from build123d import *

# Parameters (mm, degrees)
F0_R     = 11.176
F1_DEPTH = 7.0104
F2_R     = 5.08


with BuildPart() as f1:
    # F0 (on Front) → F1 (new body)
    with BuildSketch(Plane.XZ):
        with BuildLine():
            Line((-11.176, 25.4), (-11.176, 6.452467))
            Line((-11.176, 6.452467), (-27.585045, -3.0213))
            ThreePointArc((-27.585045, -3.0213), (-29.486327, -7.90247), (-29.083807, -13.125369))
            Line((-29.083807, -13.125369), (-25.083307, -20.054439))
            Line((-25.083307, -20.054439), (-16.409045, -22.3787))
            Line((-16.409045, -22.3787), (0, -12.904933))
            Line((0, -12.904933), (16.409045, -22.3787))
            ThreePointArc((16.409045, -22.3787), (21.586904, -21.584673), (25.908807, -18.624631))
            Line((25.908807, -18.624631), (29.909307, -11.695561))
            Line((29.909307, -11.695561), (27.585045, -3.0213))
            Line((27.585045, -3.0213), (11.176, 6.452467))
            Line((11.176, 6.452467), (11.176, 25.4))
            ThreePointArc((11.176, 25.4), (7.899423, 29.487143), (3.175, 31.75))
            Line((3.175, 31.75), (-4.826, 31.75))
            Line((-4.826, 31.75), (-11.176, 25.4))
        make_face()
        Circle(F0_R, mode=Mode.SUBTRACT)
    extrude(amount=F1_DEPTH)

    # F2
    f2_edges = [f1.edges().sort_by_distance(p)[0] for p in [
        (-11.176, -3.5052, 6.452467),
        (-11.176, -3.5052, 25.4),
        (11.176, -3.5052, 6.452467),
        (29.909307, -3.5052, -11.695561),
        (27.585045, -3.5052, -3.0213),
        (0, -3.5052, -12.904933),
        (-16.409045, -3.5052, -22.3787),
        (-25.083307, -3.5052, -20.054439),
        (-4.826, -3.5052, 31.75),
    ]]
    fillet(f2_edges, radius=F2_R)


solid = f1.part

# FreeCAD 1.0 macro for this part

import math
import FreeCAD as App
import Part
import Sketcher

V = App.Vector
Q = App.Units.Quantity


def edges_at(feature, points):
    """Names of the edges that pass closest to the given points."""
    edges = feature.Shape.Edges
    near = lambda p: min(range(len(edges)), key=lambda i: edges[i].distToShape(Part.Vertex(*p))[0])
    return sorted({f"Edge{near(p) + 1}" for p in points})

doc = App.newDocument("Part")
body = doc.addObject("PartDesign::Body", "Body")

# Sketch on XZ plane
sketch1 = doc.addObject("Sketcher::SketchObject", "Sketch")
body.addObject(sketch1)
sketch1.AttachmentSupport = (doc.XZ_Plane, [""])
sketch1.MapMode = "FlatFace"
sketch1.addGeometry(Part.LineSegment(V(-11, 25, 0), V(-11, 6, 0)), False)
sketch1.addGeometry(Part.LineSegment(V(-11, 6, 0), V(-28, -3, 0)), False)
sketch1.addGeometry(Part.ArcOfCircle(Part.Circle(V(-18, -10, 0), V(0, 0, 1), 12), math.radians(146), math.radians(197)), False)
sketch1.addGeometry(Part.LineSegment(V(-29, -13, 0), V(-25, -20, 0)), False)
sketch1.addGeometry(Part.LineSegment(V(-25, -20, 0), V(-16, -22, 0)), False)
sketch1.addGeometry(Part.LineSegment(V(-16, -22, 0), V(0, -13, 0)), False)
sketch1.addGeometry(Part.LineSegment(V(0, -13, 0), V(16, -22, 0)), False)
sketch1.addGeometry(Part.ArcOfCircle(Part.Circle(V(17, -11, 0), V(0, 0, 1), 12), math.radians(-94), math.radians(-43)), False)
sketch1.addGeometry(Part.LineSegment(V(26, -19, 0), V(30, -12, 0)), False)
sketch1.addGeometry(Part.LineSegment(V(30, -12, 0), V(28, -3, 0)), False)
sketch1.addGeometry(Part.LineSegment(V(28, -3, 0), V(11, 6, 0)), False)
sketch1.addGeometry(Part.LineSegment(V(11, 6, 0), V(11, 25, 0)), False)
sketch1.addGeometry(Part.ArcOfCircle(Part.Circle(V(1, 20, 0), V(0, 0, 1), 12), math.radians(26), math.radians(77)), False)
sketch1.addGeometry(Part.LineSegment(V(3, 32, 0), V(-5, 32, 0)), False)
sketch1.addGeometry(Part.LineSegment(V(-5, 32, 0), V(-11, 25, 0)), False)
sketch1.addGeometry(Part.Circle(V(0, 0, 0), V(0, 0, 1), 11), False)
sketch1.addConstraint(Sketcher.Constraint("Coincident", 0, 2, 1, 1))
sketch1.addConstraint(Sketcher.Constraint("Coincident", 1, 2, 2, 1))
sketch1.addConstraint(Sketcher.Constraint("Coincident", 2, 2, 3, 1))
sketch1.addConstraint(Sketcher.Constraint("Coincident", 3, 2, 4, 1))
sketch1.addConstraint(Sketcher.Constraint("Coincident", 4, 2, 5, 1))
sketch1.addConstraint(Sketcher.Constraint("Coincident", 5, 2, 6, 1))
sketch1.addConstraint(Sketcher.Constraint("Coincident", 6, 2, 7, 1))
sketch1.addConstraint(Sketcher.Constraint("Coincident", 7, 2, 8, 1))
sketch1.addConstraint(Sketcher.Constraint("Coincident", 8, 2, 9, 1))
sketch1.addConstraint(Sketcher.Constraint("Coincident", 9, 2, 10, 1))
sketch1.addConstraint(Sketcher.Constraint("Coincident", 10, 2, 11, 1))
sketch1.addConstraint(Sketcher.Constraint("Coincident", 11, 2, 12, 1))
sketch1.addConstraint(Sketcher.Constraint("Coincident", 12, 2, 13, 1))
sketch1.addConstraint(Sketcher.Constraint("Coincident", 13, 2, 14, 1))
sketch1.addConstraint(Sketcher.Constraint("Coincident", 14, 2, 0, 1))
sketch1.addConstraint(Sketcher.Constraint("Vertical", 0))
sketch1.addConstraint(Sketcher.Constraint("Vertical", 11))
sketch1.addConstraint(Sketcher.Constraint("Horizontal", 13))
sketch1.addConstraint(Sketcher.Constraint("Coincident", 15, 3, -1, 1))
sketch1.addConstraint(Sketcher.Constraint("Symmetric", 4, 2, 6, 2, -2))
sketch1.addConstraint(Sketcher.Constraint("Symmetric", 1, 2, 9, 2, -2))
sketch1.addConstraint(Sketcher.Constraint("Symmetric", 0, 2, 10, 2, -2))
sketch1.addConstraint(Sketcher.Constraint("PointOnObject", 5, 2, -2))
sketch1.addConstraint(Sketcher.Constraint("Perpendicular", 1, 3))
sketch1.addConstraint(Sketcher.Constraint("Perpendicular", 3, 5))
sketch1.addConstraint(Sketcher.Constraint("Perpendicular", 6, 8))
sketch1.addConstraint(Sketcher.Constraint("Horizontal", 11, 2, 14, 2))
sketch1.addConstraint(Sketcher.Constraint("Equal", 1, 5))
sketch1.addConstraint(Sketcher.Constraint("Equal", 3, 8))
sketch1.addConstraint(Sketcher.Constraint("Equal", 4, 9))
sketch1.addConstraint(Sketcher.Constraint("Equal", 9, 14))
sketch1.addConstraint(Sketcher.Constraint("Diameter", 15, Q("0.88 in")))
sketch1.addConstraint(Sketcher.Constraint("DistanceY", -1, 1, 11, 2, Q("1 in")))
sketch1.addConstraint(Sketcher.Constraint("Angle", 1, Q("-149.999999 deg")))
sketch1.addConstraint(Sketcher.Constraint("Angle", 4, Q("-14.999997 deg")))
sketch1.addConstraint(Sketcher.Constraint("Angle", 9, Q("105.000005 deg")))
sketch1.addConstraint(Sketcher.Constraint("Angle", 14, Q("-135 deg")))
sketch1.addConstraint(Sketcher.Constraint("DistanceX", 13, 2, 13, 1, Q("0.315 in")))
sketch1.addConstraint(Sketcher.Constraint("DistanceX", 0, 2, -1, 1, Q("0.44 in")))
sketch1.addConstraint(Sketcher.Constraint("DistanceY", -1, 1, 12, 2, Q("1.25 in")))
sketch1.addConstraint(Sketcher.Constraint("Distance", 3, Q("0.315 in")))
sketch1.addConstraint(Sketcher.Constraint("Radius", 12, Q("11.782139 mm")))
sketch1.addConstraint(Sketcher.Constraint("Radius", 2, Q("11.782134 mm")))
sketch1.addConstraint(Sketcher.Constraint("Radius", 7, Q("11.782136 mm")))
sketch1.addConstraint(Sketcher.Constraint("DistanceY", 7, 3, -1, 1, Q("10.627098 mm")))
sketch1.addConstraint(Sketcher.Constraint("DistanceY", 1, 2, -1, 1, Q("3.0213 mm")))
sketch1.addConstraint(Sketcher.Constraint("DistanceY", 0, 2, 0, 1, Q("18.947533 mm")))
pad1 = doc.addObject("PartDesign::Pad", "Pad")
body.addObject(pad1)
pad1.Profile = sketch1
pad1.Length = Q("0.276 in")
doc.recompute()

fillet = doc.addObject("PartDesign::Fillet", "Fillet")
body.addObject(fillet)
fillet.Base = (pad1, edges_at(pad1, [
    (-11.176, -3.505, 6.452),
    (-11.176, -3.505, 25.4),
    (11.176, -3.505, 6.452),
    (29.909, -3.505, -11.696),
    (27.585, -3.505, -3.021),
    (0, -3.505, -12.905),
    (-16.409, -3.505, -22.379),
    (-25.083, -3.505, -20.054),
    (-4.826, -3.505, 31.75),
]))
fillet.Radius = Q("0.2 in")

doc.recompute()
